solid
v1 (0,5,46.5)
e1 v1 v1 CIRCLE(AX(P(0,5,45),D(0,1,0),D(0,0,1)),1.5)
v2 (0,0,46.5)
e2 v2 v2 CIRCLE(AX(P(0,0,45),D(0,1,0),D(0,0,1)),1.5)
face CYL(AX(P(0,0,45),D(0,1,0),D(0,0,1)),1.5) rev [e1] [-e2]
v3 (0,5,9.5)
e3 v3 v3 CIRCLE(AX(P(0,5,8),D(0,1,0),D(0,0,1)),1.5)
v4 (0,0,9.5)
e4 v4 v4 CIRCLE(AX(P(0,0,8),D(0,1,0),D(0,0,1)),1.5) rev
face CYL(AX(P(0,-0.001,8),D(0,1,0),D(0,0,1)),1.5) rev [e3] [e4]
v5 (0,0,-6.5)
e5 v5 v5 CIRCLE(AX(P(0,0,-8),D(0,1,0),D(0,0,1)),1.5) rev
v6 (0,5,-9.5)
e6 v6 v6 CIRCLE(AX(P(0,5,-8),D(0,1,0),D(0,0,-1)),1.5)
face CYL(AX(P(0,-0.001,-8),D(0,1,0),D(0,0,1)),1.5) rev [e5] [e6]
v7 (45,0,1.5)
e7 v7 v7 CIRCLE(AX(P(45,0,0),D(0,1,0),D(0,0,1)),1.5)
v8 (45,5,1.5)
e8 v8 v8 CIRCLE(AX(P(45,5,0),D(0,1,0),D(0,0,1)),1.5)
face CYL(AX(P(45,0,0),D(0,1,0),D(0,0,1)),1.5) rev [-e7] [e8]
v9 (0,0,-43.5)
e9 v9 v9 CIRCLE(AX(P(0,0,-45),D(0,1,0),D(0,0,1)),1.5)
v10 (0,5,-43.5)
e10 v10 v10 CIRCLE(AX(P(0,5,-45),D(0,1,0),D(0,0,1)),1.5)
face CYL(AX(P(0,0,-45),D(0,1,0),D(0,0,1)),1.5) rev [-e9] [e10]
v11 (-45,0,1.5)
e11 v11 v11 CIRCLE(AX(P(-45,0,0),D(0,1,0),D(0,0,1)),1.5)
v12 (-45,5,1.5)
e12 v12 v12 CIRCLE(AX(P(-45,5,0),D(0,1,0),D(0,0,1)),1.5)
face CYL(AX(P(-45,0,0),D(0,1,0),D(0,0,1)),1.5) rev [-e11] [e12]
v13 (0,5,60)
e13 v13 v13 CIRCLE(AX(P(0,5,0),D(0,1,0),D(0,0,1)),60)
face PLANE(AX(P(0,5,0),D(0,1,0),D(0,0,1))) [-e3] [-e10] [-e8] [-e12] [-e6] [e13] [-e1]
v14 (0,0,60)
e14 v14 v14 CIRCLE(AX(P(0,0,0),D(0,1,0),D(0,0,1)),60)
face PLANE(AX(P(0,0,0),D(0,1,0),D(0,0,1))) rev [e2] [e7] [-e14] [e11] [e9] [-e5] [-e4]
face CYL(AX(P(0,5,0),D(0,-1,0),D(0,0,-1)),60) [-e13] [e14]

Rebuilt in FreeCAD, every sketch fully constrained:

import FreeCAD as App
import Part
import Sketcher
from FreeCAD import Vector

doc = App.newDocument("Part")
params = doc.addObject("Spreadsheet::Sheet", "Params")
for row, (alias, value) in enumerate([
    ("sketch1_diameter", "120 mm"),
    ("pad1_length", "5 mm"),
    ("sketch2_diameter", "3 mm"),
    ("pocket1_length", "5 mm"),
    ("sketch3_diameter", "3 mm"),
    ("sketch4_diameter", "3 mm"),
], start=1):
    params.set(f"A{row}", alias)
    params.set(f"B{row}", "=" + value)
    params.setAlias(f"B{row}", alias)

body = doc.addObject("PartDesign::Body", "Body")

# Sketch on XZ plane
sketch1 = body.newObject("Sketcher::SketchObject", "Sketch")
sketch1.AttachmentSupport = (doc.getObject("XZ_Plane"), [""])
sketch1.MapMode = "FlatFace"
sketch1.addGeometry(Part.Circle(Vector(0, 0, 0), Vector(0, 0, 1), 60), False)
sketch1.addConstraint(Sketcher.Constraint("Coincident", 0, 3, -1, 1))
sketch1.addConstraint(Sketcher.Constraint("Diameter", 0, 120.0))
sketch1.setExpression("Constraints[1]", "Params.sketch1_diameter")
pad1 = body.newObject("PartDesign::Pad", "Pad")
pad1.Profile = sketch1
pad1.setExpression("Length", "Params.pad1_length")
pad1.Reversed = True

# Sketch on XZ plane
sketch2 = body.newObject("Sketcher::SketchObject", "Sketch001")
sketch2.AttachmentSupport = (doc.getObject("XZ_Plane"), [""])
sketch2.MapMode = "FlatFace"
sketch2.AttachmentOffset = App.Placement(Vector(0, 0, -5), App.Rotation())
sketch2.addGeometry(Part.Circle(Vector(45, 0, 0), Vector(0, 0, 1), 1.5), False)
sketch2.addGeometry(Part.Circle(Vector(0, 45, 0), Vector(0, 0, 1), 1.5), False)
sketch2.addGeometry(Part.Circle(Vector(-45, 0, 0), Vector(0, 0, 1), 1.5), False)
sketch2.addGeometry(Part.Circle(Vector(0, -45, 0), Vector(0, 0, 1), 1.5), False)
sketch2.addConstraint(Sketcher.Constraint("Equal", 0, 1))
sketch2.addConstraint(Sketcher.Constraint("Equal", 1, 2))
sketch2.addConstraint(Sketcher.Constraint("Equal", 2, 3))
sketch2.addConstraint(Sketcher.Constraint("Symmetric", 0, 3, 2, 3, -1, 1))
sketch2.addConstraint(Sketcher.Constraint("Symmetric", 1, 3, 3, 3, -1, 1))
sketch2.addConstraint(Sketcher.Constraint("PointOnObject", 0, 3, -1))
sketch2.addConstraint(Sketcher.Constraint("PointOnObject", 1, 3, -2))
sketch2.addConstraint(Sketcher.Constraint("Diameter", 0, 3.0))
sketch2.addConstraint(Sketcher.Constraint("DistanceX", -1, 1, 0, 3, 45.0))
sketch2.addConstraint(Sketcher.Constraint("DistanceY", -1, 1, 1, 3, 45.0))
sketch2.setExpression("Constraints[7]", "Params.sketch2_diameter")
pocket1 = body.newObject("PartDesign::Pocket", "Pocket")
pocket1.Profile = sketch2
pocket1.setExpression("Length", "Params.pocket1_length")
pocket1.Reversed = True

# Sketch on XZ plane
sketch3 = body.newObject("Sketcher::SketchObject", "Sketch002")
sketch3.AttachmentSupport = (doc.getObject("XZ_Plane"), [""])
sketch3.MapMode = "FlatFace"
sketch3.AttachmentOffset = App.Placement(Vector(0, 0, -5), App.Rotation())
sketch3.addGeometry(Part.Circle(Vector(0, 8, 0), Vector(0, 0, 1), 1.5), False)
sketch3.addConstraint(Sketcher.Constraint("PointOnObject", 0, 3, -2))
sketch3.addConstraint(Sketcher.Constraint("Diameter", 0, 3.0))
sketch3.addConstraint(Sketcher.Constraint("DistanceY", -1, 1, 0, 3, 8.0))
sketch3.setExpression("Constraints[1]", "Params.sketch3_diameter")
pocket2 = body.newObject("PartDesign::Pocket", "Pocket001")
pocket2.Profile = sketch3
pocket2.Type = "UpToFirst"
pocket2.Reversed = True

# Sketch on XZ plane
sketch4 = body.newObject("Sketcher::SketchObject", "Sketch003")
sketch4.AttachmentSupport = (doc.getObject("XZ_Plane"), [""])
sketch4.MapMode = "FlatFace"
sketch4.AttachmentOffset = App.Placement(Vector(0, 0, -5), App.Rotation())
sketch4.addGeometry(Part.Circle(Vector(0, -8, 0), Vector(0, 0, 1), 1.5), False)
sketch4.addConstraint(Sketcher.Constraint("PointOnObject", 0, 3, -2))
sketch4.addConstraint(Sketcher.Constraint("Diameter", 0, 3.0))
sketch4.addConstraint(Sketcher.Constraint("DistanceY", 0, 3, -1, 1, 8.0))
sketch4.setExpression("Constraints[1]", "Params.sketch4_diameter")
pocket3 = body.newObject("PartDesign::Pocket", "Pocket002")
pocket3.Profile = sketch4
pocket3.Type = "UpToFirst"
pocket3.Reversed = True

doc.recompute()
